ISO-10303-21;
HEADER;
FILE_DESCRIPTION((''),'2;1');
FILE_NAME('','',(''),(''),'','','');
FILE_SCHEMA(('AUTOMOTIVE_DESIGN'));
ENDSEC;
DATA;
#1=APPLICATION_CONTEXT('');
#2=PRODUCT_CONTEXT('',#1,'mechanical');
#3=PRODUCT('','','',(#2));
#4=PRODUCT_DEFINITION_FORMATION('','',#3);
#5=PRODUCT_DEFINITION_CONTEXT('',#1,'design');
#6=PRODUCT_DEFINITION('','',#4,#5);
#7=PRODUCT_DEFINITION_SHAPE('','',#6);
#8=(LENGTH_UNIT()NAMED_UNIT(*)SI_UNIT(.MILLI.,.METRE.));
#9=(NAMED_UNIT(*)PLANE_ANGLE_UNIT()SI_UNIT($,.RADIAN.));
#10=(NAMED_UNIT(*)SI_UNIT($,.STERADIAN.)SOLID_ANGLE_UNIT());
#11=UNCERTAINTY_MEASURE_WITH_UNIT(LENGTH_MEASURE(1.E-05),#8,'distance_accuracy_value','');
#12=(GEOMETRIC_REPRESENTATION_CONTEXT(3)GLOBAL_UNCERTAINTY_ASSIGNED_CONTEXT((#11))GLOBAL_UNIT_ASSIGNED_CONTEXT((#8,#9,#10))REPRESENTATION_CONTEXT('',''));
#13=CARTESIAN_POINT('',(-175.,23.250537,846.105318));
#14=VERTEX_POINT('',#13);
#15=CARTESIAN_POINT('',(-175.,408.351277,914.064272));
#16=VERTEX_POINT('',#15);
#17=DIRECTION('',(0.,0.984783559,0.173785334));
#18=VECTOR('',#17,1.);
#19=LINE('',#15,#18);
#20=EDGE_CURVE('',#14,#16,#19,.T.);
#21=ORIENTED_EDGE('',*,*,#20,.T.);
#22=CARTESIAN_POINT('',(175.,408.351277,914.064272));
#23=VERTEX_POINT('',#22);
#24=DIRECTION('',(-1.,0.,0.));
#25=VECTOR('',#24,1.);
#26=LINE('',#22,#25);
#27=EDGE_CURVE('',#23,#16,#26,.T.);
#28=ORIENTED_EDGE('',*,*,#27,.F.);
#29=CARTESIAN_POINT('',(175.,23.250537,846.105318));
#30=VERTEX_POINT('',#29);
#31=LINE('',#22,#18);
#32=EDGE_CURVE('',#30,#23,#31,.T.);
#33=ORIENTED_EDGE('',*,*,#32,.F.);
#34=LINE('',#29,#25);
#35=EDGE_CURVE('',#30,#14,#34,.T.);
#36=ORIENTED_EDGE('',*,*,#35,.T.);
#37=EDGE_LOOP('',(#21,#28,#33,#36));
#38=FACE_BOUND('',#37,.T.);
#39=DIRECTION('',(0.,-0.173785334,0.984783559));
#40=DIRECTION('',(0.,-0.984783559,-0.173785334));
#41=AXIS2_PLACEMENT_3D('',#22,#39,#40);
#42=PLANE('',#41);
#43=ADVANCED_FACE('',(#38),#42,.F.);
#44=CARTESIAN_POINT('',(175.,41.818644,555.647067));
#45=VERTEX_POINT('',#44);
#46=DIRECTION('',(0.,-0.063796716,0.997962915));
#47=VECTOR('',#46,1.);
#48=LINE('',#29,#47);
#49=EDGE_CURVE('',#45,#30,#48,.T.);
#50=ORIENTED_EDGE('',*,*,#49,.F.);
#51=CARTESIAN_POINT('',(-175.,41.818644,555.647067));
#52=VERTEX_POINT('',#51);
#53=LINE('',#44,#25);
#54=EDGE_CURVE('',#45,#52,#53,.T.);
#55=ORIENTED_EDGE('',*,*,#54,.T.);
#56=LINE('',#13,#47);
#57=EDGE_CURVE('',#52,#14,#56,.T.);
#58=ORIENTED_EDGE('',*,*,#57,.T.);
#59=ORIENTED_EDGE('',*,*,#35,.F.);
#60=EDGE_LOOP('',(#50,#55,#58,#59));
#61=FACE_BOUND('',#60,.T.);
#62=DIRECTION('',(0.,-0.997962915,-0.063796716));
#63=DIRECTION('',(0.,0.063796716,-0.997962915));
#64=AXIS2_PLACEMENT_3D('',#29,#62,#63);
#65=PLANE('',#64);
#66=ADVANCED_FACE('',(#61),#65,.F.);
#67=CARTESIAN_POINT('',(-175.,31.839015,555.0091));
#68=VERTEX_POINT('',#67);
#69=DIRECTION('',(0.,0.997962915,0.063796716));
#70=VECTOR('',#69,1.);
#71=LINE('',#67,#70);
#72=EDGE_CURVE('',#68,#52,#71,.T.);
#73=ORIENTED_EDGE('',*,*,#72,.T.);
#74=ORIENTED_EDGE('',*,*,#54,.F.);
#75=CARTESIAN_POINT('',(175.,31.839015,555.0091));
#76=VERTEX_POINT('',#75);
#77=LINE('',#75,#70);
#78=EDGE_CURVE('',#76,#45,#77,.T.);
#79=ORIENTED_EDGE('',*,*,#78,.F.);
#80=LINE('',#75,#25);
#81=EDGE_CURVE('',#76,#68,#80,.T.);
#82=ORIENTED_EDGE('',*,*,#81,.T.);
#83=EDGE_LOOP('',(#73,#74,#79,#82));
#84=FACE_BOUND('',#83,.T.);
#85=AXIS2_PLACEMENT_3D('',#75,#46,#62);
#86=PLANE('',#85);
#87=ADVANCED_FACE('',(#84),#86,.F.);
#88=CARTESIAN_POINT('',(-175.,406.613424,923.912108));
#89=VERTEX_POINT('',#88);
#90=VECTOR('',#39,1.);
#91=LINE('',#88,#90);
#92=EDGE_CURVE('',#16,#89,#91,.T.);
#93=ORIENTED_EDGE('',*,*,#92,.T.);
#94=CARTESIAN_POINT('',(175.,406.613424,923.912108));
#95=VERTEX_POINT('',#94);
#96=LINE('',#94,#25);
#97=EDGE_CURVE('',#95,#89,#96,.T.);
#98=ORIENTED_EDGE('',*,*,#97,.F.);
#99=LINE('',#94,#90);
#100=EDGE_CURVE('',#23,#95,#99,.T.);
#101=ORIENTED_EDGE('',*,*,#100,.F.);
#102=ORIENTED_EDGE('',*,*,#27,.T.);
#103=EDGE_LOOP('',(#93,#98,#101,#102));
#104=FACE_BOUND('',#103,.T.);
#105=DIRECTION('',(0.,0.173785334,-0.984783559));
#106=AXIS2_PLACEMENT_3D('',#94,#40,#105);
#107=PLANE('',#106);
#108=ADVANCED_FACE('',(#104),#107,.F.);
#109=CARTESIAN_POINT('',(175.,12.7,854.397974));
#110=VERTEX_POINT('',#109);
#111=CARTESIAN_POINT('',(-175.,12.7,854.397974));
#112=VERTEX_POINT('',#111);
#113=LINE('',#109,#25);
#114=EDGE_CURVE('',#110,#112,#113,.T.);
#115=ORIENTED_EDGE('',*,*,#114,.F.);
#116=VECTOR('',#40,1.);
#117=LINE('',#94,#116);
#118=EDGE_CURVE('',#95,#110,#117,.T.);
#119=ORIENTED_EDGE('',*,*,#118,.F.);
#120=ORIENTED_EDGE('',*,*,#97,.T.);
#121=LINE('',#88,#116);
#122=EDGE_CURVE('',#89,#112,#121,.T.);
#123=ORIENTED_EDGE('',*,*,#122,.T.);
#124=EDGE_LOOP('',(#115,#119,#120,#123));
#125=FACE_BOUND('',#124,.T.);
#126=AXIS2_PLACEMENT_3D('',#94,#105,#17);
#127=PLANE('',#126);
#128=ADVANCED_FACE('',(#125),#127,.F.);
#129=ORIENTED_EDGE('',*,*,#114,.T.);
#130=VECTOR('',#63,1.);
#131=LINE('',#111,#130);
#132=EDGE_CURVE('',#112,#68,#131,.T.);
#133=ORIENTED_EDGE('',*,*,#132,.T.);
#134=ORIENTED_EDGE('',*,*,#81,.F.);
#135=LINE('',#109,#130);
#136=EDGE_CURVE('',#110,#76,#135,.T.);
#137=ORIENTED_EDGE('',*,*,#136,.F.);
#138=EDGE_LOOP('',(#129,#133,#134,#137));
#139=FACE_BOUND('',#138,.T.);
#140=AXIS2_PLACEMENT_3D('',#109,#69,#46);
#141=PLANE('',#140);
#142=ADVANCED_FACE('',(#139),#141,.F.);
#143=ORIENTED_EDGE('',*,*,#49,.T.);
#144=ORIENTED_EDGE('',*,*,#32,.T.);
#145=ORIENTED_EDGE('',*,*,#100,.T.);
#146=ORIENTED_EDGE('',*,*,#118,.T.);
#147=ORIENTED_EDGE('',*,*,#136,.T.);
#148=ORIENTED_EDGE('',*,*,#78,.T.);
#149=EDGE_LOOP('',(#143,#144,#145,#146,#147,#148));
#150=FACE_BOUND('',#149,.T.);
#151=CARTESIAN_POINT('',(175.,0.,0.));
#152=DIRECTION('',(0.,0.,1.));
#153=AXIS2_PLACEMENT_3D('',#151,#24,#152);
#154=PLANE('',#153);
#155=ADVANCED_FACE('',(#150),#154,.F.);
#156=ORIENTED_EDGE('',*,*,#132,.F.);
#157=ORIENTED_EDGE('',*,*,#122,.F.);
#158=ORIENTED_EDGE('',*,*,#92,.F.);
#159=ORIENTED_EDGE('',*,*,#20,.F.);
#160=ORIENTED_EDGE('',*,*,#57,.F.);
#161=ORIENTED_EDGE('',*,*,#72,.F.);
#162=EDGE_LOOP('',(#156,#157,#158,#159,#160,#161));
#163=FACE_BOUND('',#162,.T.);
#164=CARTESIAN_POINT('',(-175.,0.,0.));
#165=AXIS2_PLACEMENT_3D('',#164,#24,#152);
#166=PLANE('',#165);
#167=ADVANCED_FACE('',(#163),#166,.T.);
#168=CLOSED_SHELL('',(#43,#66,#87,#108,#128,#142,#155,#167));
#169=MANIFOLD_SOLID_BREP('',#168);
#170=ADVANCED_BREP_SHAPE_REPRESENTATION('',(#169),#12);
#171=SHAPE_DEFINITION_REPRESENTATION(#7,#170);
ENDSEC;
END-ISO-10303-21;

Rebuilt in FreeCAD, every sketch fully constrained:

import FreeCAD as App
import Part
import Sketcher
from FreeCAD import Vector
Q = App.Units.Quantity

doc = App.newDocument("Part")
body = doc.addObject("PartDesign::Body", "Body")

sketch1 = body.newObject("Sketcher::SketchObject", "Sketch")
sketch1.AttachmentSupport = (doc.getObject("YZ_Plane"), [""])
sketch1.MapMode = "FlatFace"
sketch1.addGeometry(Part.LineSegment(Vector(406.613424, 923.912108, 0), Vector(12.7, 854.397974, 0)), False)
sketch1.addGeometry(Part.LineSegment(Vector(12.7, 854.397974, 0), Vector(31.839015, 555.0091, 0)), False)
sketch1.addGeometry(Part.LineSegment(Vector(31.839015, 555.0091, 0), Vector(41.818644, 555.647067, 0)), False)
sketch1.addGeometry(Part.LineSegment(Vector(41.818644, 555.647067, 0), Vector(23.250537, 846.105318, 0)), False)
sketch1.addGeometry(Part.LineSegment(Vector(23.250537, 846.105318, 0), Vector(408.351277, 914.064272, 0)), False)
sketch1.addGeometry(Part.LineSegment(Vector(408.351277, 914.064272, 0), Vector(406.613424, 923.912108, 0)), False)
sketch1.addConstraint(Sketcher.Constraint("Coincident", 0, 2, 1, 1))
sketch1.addConstraint(Sketcher.Constraint("Coincident", 1, 2, 2, 1))
sketch1.addConstraint(Sketcher.Constraint("Coincident", 2, 2, 3, 1))
sketch1.addConstraint(Sketcher.Constraint("Coincident", 3, 2, 4, 1))
sketch1.addConstraint(Sketcher.Constraint("Coincident", 4, 2, 5, 1))
sketch1.addConstraint(Sketcher.Constraint("Coincident", 5, 2, 0, 1))
sketch1.addConstraint(Sketcher.Constraint("Perpendicular", 1, 2))
sketch1.addConstraint(Sketcher.Constraint("Perpendicular", 2, 3))
sketch1.addConstraint(Sketcher.Constraint("Parallel", 0, 4))
sketch1.addConstraint(Sketcher.Constraint("Perpendicular", 4, 5))
sketch1.addConstraint(Sketcher.Constraint("Equal", 2, 5))
sketch1.addConstraint(Sketcher.Constraint("Distance", 0, Q("400 mm")))
sketch1.addConstraint(Sketcher.Constraint("Distance", 1, Q("300 mm")))
sketch1.addConstraint(Sketcher.Constraint("Distance", 2, Q("10 mm")))
sketch1.addConstraint(Sketcher.Constraint("DistanceX", -1, 1, 0, 2, Q("12.7 mm")))
sketch1.addConstraint(Sketcher.Constraint("DistanceY", -1, 1, 1, 2, Q("555.0091 mm")))
sketch1.addConstraint(Sketcher.Constraint("DistanceY", -1, 1, 3, 2, Q("846.105318 mm")))
sketch1.addConstraint(Sketcher.Constraint("DistanceY", 2, 2, 3, 2, Q("290.458251 mm")))
pad1 = body.newObject("PartDesign::Pad", "Pad")
pad1.Profile = sketch1
pad1.Length = 350
pad1.Midplane = True

doc.recompute()
